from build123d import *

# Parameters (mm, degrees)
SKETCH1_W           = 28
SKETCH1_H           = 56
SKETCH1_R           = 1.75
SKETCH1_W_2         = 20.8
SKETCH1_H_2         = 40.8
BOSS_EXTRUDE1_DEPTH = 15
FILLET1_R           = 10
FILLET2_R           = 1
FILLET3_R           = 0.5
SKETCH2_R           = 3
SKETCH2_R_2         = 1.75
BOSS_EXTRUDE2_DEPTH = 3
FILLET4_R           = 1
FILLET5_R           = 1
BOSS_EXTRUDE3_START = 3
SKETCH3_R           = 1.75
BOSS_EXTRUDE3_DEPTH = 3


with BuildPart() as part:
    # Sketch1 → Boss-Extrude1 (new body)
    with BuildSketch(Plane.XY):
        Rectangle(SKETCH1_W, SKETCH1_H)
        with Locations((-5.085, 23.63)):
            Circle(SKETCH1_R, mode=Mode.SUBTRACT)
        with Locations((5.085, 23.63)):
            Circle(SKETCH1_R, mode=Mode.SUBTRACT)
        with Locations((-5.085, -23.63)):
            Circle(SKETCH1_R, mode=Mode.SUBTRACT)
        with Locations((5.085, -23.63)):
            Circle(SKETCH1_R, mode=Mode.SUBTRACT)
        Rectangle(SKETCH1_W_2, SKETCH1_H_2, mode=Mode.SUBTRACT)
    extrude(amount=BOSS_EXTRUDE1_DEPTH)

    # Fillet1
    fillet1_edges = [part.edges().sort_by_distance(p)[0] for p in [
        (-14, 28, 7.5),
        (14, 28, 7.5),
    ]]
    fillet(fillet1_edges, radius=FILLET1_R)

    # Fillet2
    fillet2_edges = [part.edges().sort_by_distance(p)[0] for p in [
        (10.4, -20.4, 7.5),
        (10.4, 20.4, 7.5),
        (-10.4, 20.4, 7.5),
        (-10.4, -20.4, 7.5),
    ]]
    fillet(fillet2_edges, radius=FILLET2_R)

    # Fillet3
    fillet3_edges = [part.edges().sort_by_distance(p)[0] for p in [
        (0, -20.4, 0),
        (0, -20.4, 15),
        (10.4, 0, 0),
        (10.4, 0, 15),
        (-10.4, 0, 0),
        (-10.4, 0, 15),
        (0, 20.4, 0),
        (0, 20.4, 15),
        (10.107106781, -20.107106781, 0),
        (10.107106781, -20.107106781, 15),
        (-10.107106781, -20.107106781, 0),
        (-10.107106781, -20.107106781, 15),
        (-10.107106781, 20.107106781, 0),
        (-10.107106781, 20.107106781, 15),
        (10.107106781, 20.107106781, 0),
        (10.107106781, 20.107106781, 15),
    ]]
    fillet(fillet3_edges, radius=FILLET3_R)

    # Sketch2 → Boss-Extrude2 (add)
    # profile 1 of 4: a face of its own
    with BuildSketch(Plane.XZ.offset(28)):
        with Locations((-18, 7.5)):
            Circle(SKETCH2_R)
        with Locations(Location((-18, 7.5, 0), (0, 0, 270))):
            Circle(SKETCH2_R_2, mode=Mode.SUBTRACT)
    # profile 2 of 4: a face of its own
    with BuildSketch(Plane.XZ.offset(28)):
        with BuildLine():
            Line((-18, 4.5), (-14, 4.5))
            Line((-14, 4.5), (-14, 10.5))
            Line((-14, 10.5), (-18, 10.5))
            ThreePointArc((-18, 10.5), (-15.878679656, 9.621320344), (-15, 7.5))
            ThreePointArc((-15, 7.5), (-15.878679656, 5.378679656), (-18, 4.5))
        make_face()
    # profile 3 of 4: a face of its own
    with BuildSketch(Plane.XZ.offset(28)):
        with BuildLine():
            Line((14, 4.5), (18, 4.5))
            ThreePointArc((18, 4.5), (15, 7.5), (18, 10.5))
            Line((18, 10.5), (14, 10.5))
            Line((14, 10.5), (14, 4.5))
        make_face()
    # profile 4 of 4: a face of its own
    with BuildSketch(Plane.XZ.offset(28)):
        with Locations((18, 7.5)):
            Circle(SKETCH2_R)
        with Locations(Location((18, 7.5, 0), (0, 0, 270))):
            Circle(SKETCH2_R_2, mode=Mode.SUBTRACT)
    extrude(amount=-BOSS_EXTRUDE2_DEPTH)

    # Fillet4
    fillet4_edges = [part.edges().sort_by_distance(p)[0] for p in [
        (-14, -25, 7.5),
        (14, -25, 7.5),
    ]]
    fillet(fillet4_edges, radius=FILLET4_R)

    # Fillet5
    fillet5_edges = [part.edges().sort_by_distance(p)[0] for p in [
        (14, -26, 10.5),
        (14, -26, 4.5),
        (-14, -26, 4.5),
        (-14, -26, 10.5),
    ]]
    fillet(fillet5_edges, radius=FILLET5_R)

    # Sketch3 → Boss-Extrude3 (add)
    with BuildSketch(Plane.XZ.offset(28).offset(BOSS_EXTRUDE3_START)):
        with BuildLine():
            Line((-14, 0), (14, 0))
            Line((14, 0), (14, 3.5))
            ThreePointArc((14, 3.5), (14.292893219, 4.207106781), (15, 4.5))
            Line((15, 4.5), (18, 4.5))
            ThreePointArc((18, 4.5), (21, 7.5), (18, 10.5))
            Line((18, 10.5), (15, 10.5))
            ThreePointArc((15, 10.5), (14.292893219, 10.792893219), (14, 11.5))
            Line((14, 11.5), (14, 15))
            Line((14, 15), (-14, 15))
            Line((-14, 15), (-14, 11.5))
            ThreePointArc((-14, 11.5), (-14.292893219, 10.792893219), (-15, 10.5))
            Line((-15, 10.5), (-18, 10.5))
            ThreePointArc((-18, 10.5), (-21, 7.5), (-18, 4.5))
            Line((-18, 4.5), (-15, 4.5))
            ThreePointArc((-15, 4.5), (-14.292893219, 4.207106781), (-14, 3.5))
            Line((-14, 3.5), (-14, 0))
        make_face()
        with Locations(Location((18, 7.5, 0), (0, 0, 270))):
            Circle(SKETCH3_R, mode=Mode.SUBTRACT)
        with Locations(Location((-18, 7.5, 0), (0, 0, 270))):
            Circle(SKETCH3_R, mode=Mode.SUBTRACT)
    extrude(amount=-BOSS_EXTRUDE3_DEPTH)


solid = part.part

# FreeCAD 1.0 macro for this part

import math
import FreeCAD as App
import Part
import Sketcher

V = App.Vector
Q = App.Units.Quantity


def edges_at(feature, points):
    """Names of the edges that pass closest to the given points."""
    edges = feature.Shape.Edges
    near = lambda p: min(range(len(edges)), key=lambda i: edges[i].distToShape(Part.Vertex(*p))[0])
    return sorted({f"Edge{near(p) + 1}" for p in points})

doc = App.newDocument("Part")
params = doc.addObject("Spreadsheet::Sheet", "Params")
for row, (alias, value) in enumerate([
    ("sketch1_diameter", "3.5 mm"),
    ("sketch1_width", "28 mm"),
    ("sketch1_height", "56 mm"),
    ("sketch1_width2", "20.8 mm"),
    ("sketch1_height2", "40.8 mm"),
    ("pad1_length", "15 mm"),
    ("fillet_radius", "10 mm"),
    ("fillet2_radius", "1 mm"),
    ("fillet3_radius", "0.5 mm"),
    ("sketch2_radius", "3 mm"),
    ("sketch2_diameter", "3.5 mm"),
    ("sketch2_width", "4 mm"),
    ("pad2_length", "3 mm"),
    ("fillet4_radius", "1 mm"),
    ("fillet5_radius", "1 mm"),
    ("sketch3_radius", "1 mm"),
    ("sketch3_radius2", "3 mm"),
    ("sketch3_diameter", "3.5 mm"),
    ("sketch3_width", "28 mm"),
    ("sketch3_width2", "3 mm"),
    ("pad3_length", "3 mm"),
], start=1):
    params.set(f"A{row}", alias)
    params.set(f"B{row}", "=" + value)
    params.setAlias(f"B{row}", alias)

body = doc.addObject("PartDesign::Body", "Body")

# Sketch on XY plane
sketch1 = body.newObject("Sketcher::SketchObject", "Sketch")
sketch1.AttachmentSupport = (doc.getObject("XY_Plane"), [""])
sketch1.MapMode = "FlatFace"
sketch1.addGeometry([
    Part.LineSegment(V(-14, 28, 0), V(-14, -28, 0)),  # 0
    Part.LineSegment(V(-14, -28, 0), V(14, -28, 0)),  # 1
    Part.LineSegment(V(14, -28, 0), V(14, 28, 0)),  # 2
    Part.LineSegment(V(14, 28, 0), V(-14, 28, 0)),  # 3
    Part.Circle(V(-5.085, -23.63, 0), V(0, 0, 1), 1.75),  # 4
    Part.Circle(V(5.085, -23.63, 0), V(0, 0, 1), 1.75),  # 5
    Part.Circle(V(-5.085, 23.63, 0), V(0, 0, 1), 1.75),  # 6
    Part.LineSegment(V(10.4, -20.4, 0), V(-10.4, -20.4, 0)),  # 7
    Part.LineSegment(V(-10.4, -20.4, 0), V(-10.4, 20.4, 0)),  # 8
    Part.LineSegment(V(-10.4, 20.4, 0), V(10.4, 20.4, 0)),  # 9
    Part.LineSegment(V(10.4, 20.4, 0), V(10.4, -20.4, 0)),  # 10
    Part.Circle(V(5.085, 23.63, 0), V(0, 0, 1), 1.75),  # 11
], False)
sketch1.addConstraint([
    Sketcher.Constraint("Coincident", 0, 2, 1, 1),
    Sketcher.Constraint("Coincident", 1, 2, 2, 1),
    Sketcher.Constraint("Coincident", 2, 2, 3, 1),
    Sketcher.Constraint("Coincident", 3, 2, 0, 1),
    Sketcher.Constraint("Coincident", 7, 2, 8, 1),
    Sketcher.Constraint("Coincident", 8, 2, 9, 1),
    Sketcher.Constraint("Coincident", 9, 2, 10, 1),
    Sketcher.Constraint("Coincident", 10, 2, 7, 1),
    Sketcher.Constraint("Vertical", 0),
    Sketcher.Constraint("Horizontal", 1),
    Sketcher.Constraint("Vertical", 2),
    Sketcher.Constraint("Horizontal", 3),
    Sketcher.Constraint("Horizontal", 7),
    Sketcher.Constraint("Vertical", 8),
    Sketcher.Constraint("Horizontal", 9),
    Sketcher.Constraint("Vertical", 10),
    Sketcher.Constraint("Equal", 4, 5),
    Sketcher.Constraint("Equal", 5, 6),
    Sketcher.Constraint("Equal", 6, 11),
    Sketcher.Constraint("Symmetric", 5, 3, 6, 3, -1, 1),
    Sketcher.Constraint("Symmetric", 4, 3, 11, 3, -1, 1),
    Sketcher.Constraint("Symmetric", 0, 2, 2, 2, -1, 1),
    Sketcher.Constraint("Symmetric", 7, 2, 9, 2, -1, 1),
    Sketcher.Constraint("Symmetric", 4, 3, 5, 3, -2),
    Sketcher.Constraint("Diameter", 4, Q("3.5 mm")),
    Sketcher.Constraint("DistanceX", 1, 1, 1, 2, Q("28 mm")),
    Sketcher.Constraint("DistanceY", 0, 2, 0, 1, Q("56 mm")),
    Sketcher.Constraint("DistanceX", 7, 2, 7, 1, Q("20.8 mm")),
    Sketcher.Constraint("DistanceY", 8, 1, 8, 2, Q("40.8 mm")),
    Sketcher.Constraint("DistanceY", 4, 3, -1, 1, Q("23.63 mm")),
    Sketcher.Constraint("DistanceX", 4, 3, 5, 3, Q("10.17 mm")),
])
sketch1.setExpression("Constraints[24]", "Params.sketch1_diameter")
sketch1.setExpression("Constraints[25]", "Params.sketch1_width")
sketch1.setExpression("Constraints[26]", "Params.sketch1_height")
sketch1.setExpression("Constraints[27]", "Params.sketch1_width2")
sketch1.setExpression("Constraints[28]", "Params.sketch1_height2")
pad1 = body.newObject("PartDesign::Pad", "Pad")
pad1.Profile = sketch1
pad1.setExpression("Length", "Params.pad1_length")
doc.recompute()

fillet = body.newObject("PartDesign::Fillet", "Fillet")
fillet.Base = (pad1, edges_at(pad1, [(-14, 28, 7.5), (14, 28, 7.5)]))
fillet.setExpression("Radius", "Params.fillet_radius")
doc.recompute()

fillet2 = body.newObject("PartDesign::Fillet", "Fillet001")
fillet2.Base = (fillet, edges_at(fillet, [
    (10.4, -20.4, 7.5),
    (10.4, 20.4, 7.5),
    (-10.4, 20.4, 7.5),
    (-10.4, -20.4, 7.5),
]))
fillet2.setExpression("Radius", "Params.fillet2_radius")
doc.recompute()

fillet3 = body.newObject("PartDesign::Fillet", "Fillet002")
fillet3.Base = (fillet2, edges_at(fillet2, [
    (0, -20.4, 0),
    (0, -20.4, 15),
    (10.4, 0, 0),
    (10.4, 0, 15),
    (-10.4, 0, 0),
    (-10.4, 0, 15),
    (0, 20.4, 0),
    (0, 20.4, 15),
    (10.107, -20.107, 0),
    (10.107, -20.107, 15),
    (-10.107, -20.107, 0),
    (-10.107, -20.107, 15),
    (-10.107, 20.107, 0),
    (-10.107, 20.107, 15),
    (10.107, 20.107, 0),
    (10.107, 20.107, 15),
]))
fillet3.setExpression("Radius", "Params.fillet3_radius")

# Sketch on XZ plane
sketch2 = body.newObject("Sketcher::SketchObject", "Sketch001")
sketch2.AttachmentSupport = (doc.getObject("XZ_Plane"), [""])
sketch2.MapMode = "FlatFace"
sketch2.AttachmentOffset = App.Placement(V(0, 0, 28), App.Rotation())
sketch2.addGeometry([
    Part.ArcOfCircle(Part.Circle(V(-18, 7.5, 0), V(0, 0, 1), 3), math.radians(90), math.radians(270)),  # 0
    Part.LineSegment(V(-18, 4.5, 0), V(-14, 4.5, 0)),  # 1
    Part.LineSegment(V(-14, 4.5, 0), V(-14, 10.5, 0)),  # 2
    Part.LineSegment(V(-14, 10.5, 0), V(-18, 10.5, 0)),  # 3
    Part.Circle(V(-18, 7.5, 0), V(0, 0, 1), 1.75),  # 4
    Part.LineSegment(V(14, 4.5, 0), V(18, 4.5, 0)),  # 5
    Part.ArcOfCircle(Part.Circle(V(18, 7.5, 0), V(0, 0, 1), 3), math.radians(-90), math.radians(90)),  # 6
    Part.LineSegment(V(18, 10.5, 0), V(14, 10.5, 0)),  # 7
    Part.LineSegment(V(14, 10.5, 0), V(14, 4.5, 0)),  # 8
    Part.Circle(V(18, 7.5, 0), V(0, 0, 1), 1.75),  # 9
], False)
sketch2.addConstraint([
    Sketcher.Constraint("Tangent", 0, 2, 1, 1),
    Sketcher.Constraint("Coincident", 1, 2, 2, 1),
    Sketcher.Constraint("Coincident", 2, 2, 3, 1),
    Sketcher.Constraint("Tangent", 3, 2, 0, 1),
    Sketcher.Constraint("Tangent", 5, 2, 6, 1),
    Sketcher.Constraint("Tangent", 6, 2, 7, 1),
    Sketcher.Constraint("Coincident", 7, 2, 8, 1),
    Sketcher.Constraint("Coincident", 8, 2, 5, 1),
    Sketcher.Constraint("Horizontal", 1),
    Sketcher.Constraint("Vertical", 2),
    Sketcher.Constraint("Horizontal", 3),
    Sketcher.Constraint("Horizontal", 5),
    Sketcher.Constraint("Horizontal", 7),
    Sketcher.Constraint("Vertical", 8),
    Sketcher.Constraint("Coincident", 4, 3, 0, 3),
    Sketcher.Constraint("Coincident", 9, 3, 6, 3),
    Sketcher.Constraint("Equal", 0, 6),
    Sketcher.Constraint("Equal", 4, 9),
    Sketcher.Constraint("Symmetric", 0, 3, 6, 3, -2),
    Sketcher.Constraint("Equal", 3, 5),
    Sketcher.Constraint("Radius", 0, Q("3 mm")),
    Sketcher.Constraint("Diameter", 4, Q("3.5 mm")),
    Sketcher.Constraint("DistanceX", 1, 1, 1, 2, Q("4 mm")),
    Sketcher.Constraint("DistanceX", 0, 3, -1, 1, Q("18 mm")),
    Sketcher.Constraint("DistanceY", -1, 1, 0, 3, Q("7.5 mm")),
])
sketch2.setExpression("Constraints[20]", "Params.sketch2_radius")
sketch2.setExpression("Constraints[21]", "Params.sketch2_diameter")
sketch2.setExpression("Constraints[22]", "Params.sketch2_width")
pad2 = body.newObject("PartDesign::Pad", "Pad001")
pad2.Profile = sketch2
pad2.setExpression("Length", "Params.pad2_length")
pad2.Reversed = True
doc.recompute()

fillet4 = body.newObject("PartDesign::Fillet", "Fillet003")
fillet4.Base = (pad2, edges_at(pad2, [(-14, -25, 7.5), (14, -25, 7.5)]))
fillet4.setExpression("Radius", "Params.fillet4_radius")
doc.recompute()

fillet5 = body.newObject("PartDesign::Fillet", "Fillet004")
fillet5.Base = (fillet4, edges_at(fillet4, [
    (14, -26, 10.5),
    (14, -26, 4.5),
    (-14, -26, 4.5),
    (-14, -26, 10.5),
]))
fillet5.setExpression("Radius", "Params.fillet5_radius")

# Sketch on XZ plane
sketch3 = body.newObject("Sketcher::SketchObject", "Sketch002")
sketch3.AttachmentSupport = (doc.getObject("XZ_Plane"), [""])
sketch3.MapMode = "FlatFace"
sketch3.AttachmentOffset = App.Placement(V(0, 0, 31), App.Rotation())
sketch3.addGeometry([
    Part.LineSegment(V(-14, 0, 0), V(14, 0, 0)),  # 0
    Part.LineSegment(V(14, 0, 0), V(14, 3.5, 0)),  # 1
    Part.ArcOfCircle(Part.Circle(V(15, 3.5, 0), V(0, 0, 1), 1), math.radians(90), math.radians(180)),  # 2
    Part.LineSegment(V(15, 4.5, 0), V(18, 4.5, 0)),  # 3
    Part.ArcOfCircle(Part.Circle(V(18, 7.5, 0), V(0, 0, 1), 3), math.radians(-90), math.radians(90)),  # 4
    Part.LineSegment(V(18, 10.5, 0), V(15, 10.5, 0)),  # 5
    Part.ArcOfCircle(Part.Circle(V(15, 11.5, 0), V(0, 0, 1), 1), math.radians(-180), math.radians(-90)),  # 6
    Part.LineSegment(V(14, 11.5, 0), V(14, 15, 0)),  # 7
    Part.LineSegment(V(14, 15, 0), V(-14, 15, 0)),  # 8
    Part.LineSegment(V(-14, 15, 0), V(-14, 11.5, 0)),  # 9
    Part.ArcOfCircle(Part.Circle(V(-15, 11.5, 0), V(0, 0, 1), 1), math.radians(-90), math.radians(0)),  # 10
    Part.LineSegment(V(-15, 10.5, 0), V(-18, 10.5, 0)),  # 11
    Part.ArcOfCircle(Part.Circle(V(-18, 7.5, 0), V(0, 0, 1), 3), math.radians(90), math.radians(270)),  # 12
    Part.LineSegment(V(-18, 4.5, 0), V(-15, 4.5, 0)),  # 13
    Part.ArcOfCircle(Part.Circle(V(-15, 3.5, 0), V(0, 0, 1), 1), math.radians(0), math.radians(90)),  # 14
    Part.LineSegment(V(-14, 3.5, 0), V(-14, 0, 0)),  # 15
    Part.Circle(V(-18, 7.5, 0), V(0, 0, 1), 1.75),  # 16
    Part.Circle(V(18, 7.5, 0), V(0, 0, 1), 1.75),  # 17
], False)
sketch3.addConstraint([
    Sketcher.Constraint("Coincident", 0, 2, 1, 1),
    Sketcher.Constraint("Tangent", 1, 2, 2, 2),
    Sketcher.Constraint("Tangent", 2, 1, 3, 1),
    Sketcher.Constraint("Tangent", 3, 2, 4, 1),
    Sketcher.Constraint("Tangent", 4, 2, 5, 1),
    Sketcher.Constraint("Tangent", 5, 2, 6, 2),
    Sketcher.Constraint("Tangent", 6, 1, 7, 1),
    Sketcher.Constraint("Coincident", 7, 2, 8, 1),
    Sketcher.Constraint("Coincident", 8, 2, 9, 1),
    Sketcher.Constraint("Tangent", 9, 2, 10, 2),
    Sketcher.Constraint("Tangent", 10, 1, 11, 1),
    Sketcher.Constraint("Tangent", 11, 2, 12, 1),
    Sketcher.Constraint("Tangent", 12, 2, 13, 1),
    Sketcher.Constraint("Tangent", 13, 2, 14, 2),
    Sketcher.Constraint("Tangent", 14, 1, 15, 1),
    Sketcher.Constraint("Coincident", 15, 2, 0, 1),
    Sketcher.Constraint("Horizontal", 0),
    Sketcher.Constraint("Vertical", 1),
    Sketcher.Constraint("Horizontal", 3),
    Sketcher.Constraint("Horizontal", 5),
    Sketcher.Constraint("Vertical", 7),
    Sketcher.Constraint("Horizontal", 8),
    Sketcher.Constraint("Vertical", 9),
    Sketcher.Constraint("Horizontal", 11),
    Sketcher.Constraint("Horizontal", 13),
    Sketcher.Constraint("Vertical", 15),
    Sketcher.Constraint("Coincident", 16, 3, 12, 3),
    Sketcher.Constraint("Coincident", 17, 3, 4, 3),
    Sketcher.Constraint("Equal", 2, 6),
    Sketcher.Constraint("Equal", 6, 10),
    Sketcher.Constraint("Equal", 4, 12),
    Sketcher.Constraint("Equal", 10, 14),
    Sketcher.Constraint("Equal", 16, 17),
    Sketcher.Constraint("Symmetric", 0, 2, 15, 2, -1, 1),
    Sketcher.Constraint("Symmetric", 6, 3, 10, 3, -2),
    Sketcher.Constraint("Vertical", 2, 3, 6, 3),
    Sketcher.Constraint("Equal", 5, 11),
    Sketcher.Constraint("Equal", 1, 7),
    Sketcher.Constraint("Radius", 2, Q("1 mm")),
    Sketcher.Constraint("Radius", 4, Q("3 mm")),
    Sketcher.Constraint("Diameter", 16, Q("3.5 mm")),
    Sketcher.Constraint("DistanceX", 0, 1, 0, 2, Q("28 mm")),
    Sketcher.Constraint("DistanceX", 3, 1, 3, 2, Q("3 mm")),
    Sketcher.Constraint("DistanceY", 1, 1, 1, 2, Q("3.5 mm")),
])
sketch3.setExpression("Constraints[38]", "Params.sketch3_radius")
sketch3.setExpression("Constraints[39]", "Params.sketch3_radius2")
sketch3.setExpression("Constraints[40]", "Params.sketch3_diameter")
sketch3.setExpression("Constraints[41]", "Params.sketch3_width")
sketch3.setExpression("Constraints[42]", "Params.sketch3_width2")
pad3 = body.newObject("PartDesign::Pad", "Pad002")
pad3.Profile = sketch3
pad3.setExpression("Length", "Params.pad3_length")
pad3.Reversed = True

doc.recompute()
